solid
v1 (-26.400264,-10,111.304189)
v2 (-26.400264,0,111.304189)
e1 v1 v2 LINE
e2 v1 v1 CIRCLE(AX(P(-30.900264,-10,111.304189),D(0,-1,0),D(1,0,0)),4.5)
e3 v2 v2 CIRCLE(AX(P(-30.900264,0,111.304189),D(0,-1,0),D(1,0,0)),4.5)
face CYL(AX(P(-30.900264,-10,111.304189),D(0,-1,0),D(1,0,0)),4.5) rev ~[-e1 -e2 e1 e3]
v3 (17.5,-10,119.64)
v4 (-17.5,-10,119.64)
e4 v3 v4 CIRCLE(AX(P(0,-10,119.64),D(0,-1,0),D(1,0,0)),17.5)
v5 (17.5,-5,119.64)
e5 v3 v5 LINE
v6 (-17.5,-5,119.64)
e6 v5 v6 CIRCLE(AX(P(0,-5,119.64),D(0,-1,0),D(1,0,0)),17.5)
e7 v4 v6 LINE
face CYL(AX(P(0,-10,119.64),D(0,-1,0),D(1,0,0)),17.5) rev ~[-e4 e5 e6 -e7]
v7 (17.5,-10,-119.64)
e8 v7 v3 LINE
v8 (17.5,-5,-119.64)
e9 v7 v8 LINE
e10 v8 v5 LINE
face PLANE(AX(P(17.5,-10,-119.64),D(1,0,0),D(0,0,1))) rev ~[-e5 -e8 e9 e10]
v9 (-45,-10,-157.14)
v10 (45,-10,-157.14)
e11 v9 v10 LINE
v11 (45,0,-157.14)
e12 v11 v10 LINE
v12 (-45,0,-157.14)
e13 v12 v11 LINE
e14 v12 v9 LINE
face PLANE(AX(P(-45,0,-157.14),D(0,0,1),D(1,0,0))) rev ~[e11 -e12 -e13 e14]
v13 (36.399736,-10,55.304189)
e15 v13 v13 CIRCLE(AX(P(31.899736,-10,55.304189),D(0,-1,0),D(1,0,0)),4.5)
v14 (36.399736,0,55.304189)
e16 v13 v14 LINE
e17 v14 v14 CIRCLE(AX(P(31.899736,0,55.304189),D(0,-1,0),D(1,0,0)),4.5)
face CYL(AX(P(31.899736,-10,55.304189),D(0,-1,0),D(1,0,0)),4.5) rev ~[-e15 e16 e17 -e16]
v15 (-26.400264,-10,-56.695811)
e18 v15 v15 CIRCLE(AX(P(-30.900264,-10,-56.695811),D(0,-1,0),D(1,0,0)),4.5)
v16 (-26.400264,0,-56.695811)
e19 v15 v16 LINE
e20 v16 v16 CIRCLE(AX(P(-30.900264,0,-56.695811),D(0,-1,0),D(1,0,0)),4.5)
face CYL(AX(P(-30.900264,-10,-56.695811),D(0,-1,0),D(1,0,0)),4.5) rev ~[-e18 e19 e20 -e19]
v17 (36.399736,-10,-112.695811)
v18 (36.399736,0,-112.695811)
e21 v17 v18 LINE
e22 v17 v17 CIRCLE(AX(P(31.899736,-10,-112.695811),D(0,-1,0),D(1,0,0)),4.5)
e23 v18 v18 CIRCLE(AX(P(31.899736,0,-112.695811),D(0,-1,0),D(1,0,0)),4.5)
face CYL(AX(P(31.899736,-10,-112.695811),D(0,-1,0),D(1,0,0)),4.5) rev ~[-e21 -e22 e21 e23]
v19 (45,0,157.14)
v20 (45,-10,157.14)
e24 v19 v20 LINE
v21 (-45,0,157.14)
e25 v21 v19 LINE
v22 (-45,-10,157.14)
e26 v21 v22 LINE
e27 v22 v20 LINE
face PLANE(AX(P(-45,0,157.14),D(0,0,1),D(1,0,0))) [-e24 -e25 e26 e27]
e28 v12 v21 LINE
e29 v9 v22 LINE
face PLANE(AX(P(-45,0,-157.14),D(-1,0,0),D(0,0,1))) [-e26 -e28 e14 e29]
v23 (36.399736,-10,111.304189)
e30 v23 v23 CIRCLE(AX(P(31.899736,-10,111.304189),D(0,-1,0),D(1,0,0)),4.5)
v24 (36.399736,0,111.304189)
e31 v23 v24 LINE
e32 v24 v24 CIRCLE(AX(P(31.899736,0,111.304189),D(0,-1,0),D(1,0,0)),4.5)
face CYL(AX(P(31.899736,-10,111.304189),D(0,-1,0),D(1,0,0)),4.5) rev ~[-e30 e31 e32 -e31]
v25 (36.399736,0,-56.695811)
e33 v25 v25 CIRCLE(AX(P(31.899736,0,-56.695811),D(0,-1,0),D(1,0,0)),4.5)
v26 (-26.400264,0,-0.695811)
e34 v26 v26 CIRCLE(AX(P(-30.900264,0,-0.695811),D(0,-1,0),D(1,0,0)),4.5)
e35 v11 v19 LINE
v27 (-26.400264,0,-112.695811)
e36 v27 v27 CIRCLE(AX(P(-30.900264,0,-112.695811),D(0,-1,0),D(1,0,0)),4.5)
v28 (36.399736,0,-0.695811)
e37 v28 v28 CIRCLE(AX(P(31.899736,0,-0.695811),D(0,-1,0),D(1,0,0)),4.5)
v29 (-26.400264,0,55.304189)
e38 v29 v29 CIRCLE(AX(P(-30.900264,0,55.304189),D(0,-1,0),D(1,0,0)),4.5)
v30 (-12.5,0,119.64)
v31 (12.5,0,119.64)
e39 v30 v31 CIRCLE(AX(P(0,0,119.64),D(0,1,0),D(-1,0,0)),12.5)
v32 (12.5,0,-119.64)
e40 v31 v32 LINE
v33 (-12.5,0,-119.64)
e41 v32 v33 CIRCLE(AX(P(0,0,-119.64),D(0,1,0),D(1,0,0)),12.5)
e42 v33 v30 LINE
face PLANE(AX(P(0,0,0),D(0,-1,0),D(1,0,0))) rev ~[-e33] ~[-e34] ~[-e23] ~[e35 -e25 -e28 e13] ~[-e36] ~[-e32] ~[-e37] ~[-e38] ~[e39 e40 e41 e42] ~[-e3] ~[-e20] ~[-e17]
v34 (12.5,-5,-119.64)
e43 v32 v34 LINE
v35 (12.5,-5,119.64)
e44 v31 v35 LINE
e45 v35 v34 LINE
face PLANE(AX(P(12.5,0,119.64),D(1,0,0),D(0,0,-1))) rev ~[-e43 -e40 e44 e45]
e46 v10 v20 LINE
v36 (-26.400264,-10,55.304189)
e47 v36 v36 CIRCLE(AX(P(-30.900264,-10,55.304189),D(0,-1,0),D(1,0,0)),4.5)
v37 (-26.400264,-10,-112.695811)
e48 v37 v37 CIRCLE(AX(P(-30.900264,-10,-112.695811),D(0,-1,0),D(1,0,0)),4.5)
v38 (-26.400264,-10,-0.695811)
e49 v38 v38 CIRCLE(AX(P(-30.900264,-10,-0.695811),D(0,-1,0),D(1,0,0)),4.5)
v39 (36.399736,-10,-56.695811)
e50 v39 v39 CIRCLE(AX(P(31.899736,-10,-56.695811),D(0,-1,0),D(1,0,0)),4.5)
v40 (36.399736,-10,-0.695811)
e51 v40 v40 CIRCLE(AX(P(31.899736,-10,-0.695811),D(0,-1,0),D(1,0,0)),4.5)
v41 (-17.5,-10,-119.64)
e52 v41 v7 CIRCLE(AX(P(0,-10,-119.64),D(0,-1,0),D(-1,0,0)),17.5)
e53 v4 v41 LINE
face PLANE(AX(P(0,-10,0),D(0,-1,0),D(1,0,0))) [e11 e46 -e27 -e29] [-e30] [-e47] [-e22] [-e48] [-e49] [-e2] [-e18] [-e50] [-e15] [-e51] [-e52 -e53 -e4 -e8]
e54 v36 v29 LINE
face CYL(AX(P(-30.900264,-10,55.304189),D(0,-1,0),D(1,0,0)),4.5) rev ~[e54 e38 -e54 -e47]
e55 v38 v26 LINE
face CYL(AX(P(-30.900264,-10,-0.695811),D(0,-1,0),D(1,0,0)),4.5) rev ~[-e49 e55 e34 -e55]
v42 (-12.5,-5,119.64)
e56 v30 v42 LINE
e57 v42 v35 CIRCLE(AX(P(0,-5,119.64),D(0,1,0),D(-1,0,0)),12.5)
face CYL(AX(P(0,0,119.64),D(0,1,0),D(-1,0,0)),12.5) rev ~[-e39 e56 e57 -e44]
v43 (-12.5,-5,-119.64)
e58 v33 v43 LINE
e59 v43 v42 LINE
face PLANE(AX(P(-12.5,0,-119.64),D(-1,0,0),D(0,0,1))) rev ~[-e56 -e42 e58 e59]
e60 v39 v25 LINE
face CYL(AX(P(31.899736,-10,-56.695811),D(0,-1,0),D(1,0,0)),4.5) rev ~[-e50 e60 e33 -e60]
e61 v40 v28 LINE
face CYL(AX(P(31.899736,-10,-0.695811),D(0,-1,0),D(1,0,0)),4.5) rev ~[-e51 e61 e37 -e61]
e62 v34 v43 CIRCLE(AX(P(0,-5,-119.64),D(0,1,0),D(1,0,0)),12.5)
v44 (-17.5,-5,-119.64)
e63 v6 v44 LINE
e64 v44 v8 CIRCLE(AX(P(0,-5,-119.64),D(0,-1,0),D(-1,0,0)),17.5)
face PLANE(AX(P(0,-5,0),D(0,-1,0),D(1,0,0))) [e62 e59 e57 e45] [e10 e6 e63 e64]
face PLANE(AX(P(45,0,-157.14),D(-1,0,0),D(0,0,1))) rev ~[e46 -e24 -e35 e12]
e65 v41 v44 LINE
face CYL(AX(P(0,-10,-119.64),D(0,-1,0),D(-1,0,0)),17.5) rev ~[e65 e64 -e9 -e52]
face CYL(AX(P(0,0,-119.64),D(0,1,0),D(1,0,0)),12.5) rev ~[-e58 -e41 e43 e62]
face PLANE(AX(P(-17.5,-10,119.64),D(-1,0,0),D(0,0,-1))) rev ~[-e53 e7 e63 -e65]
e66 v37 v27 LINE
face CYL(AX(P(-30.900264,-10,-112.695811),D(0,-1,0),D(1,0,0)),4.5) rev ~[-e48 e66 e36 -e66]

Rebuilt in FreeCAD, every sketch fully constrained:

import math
import FreeCAD as App
import Part
import Sketcher

V = App.Vector
Q = App.Units.Quantity


def add_polygon(sketch, points):
    """Adds a closed chain of lines whose ends are joined by coincident constraints."""
    first, n = sketch.GeometryCount, len(points)
    for a, b in zip(points, points[1:] + points[:1]):
        sketch.addGeometry(Part.LineSegment(App.Vector(*a, 0), App.Vector(*b, 0)), False)
    for i in range(n):
        sketch.addConstraint(Sketcher.Constraint("Coincident", first + i, 2, first + (i + 1) % n, 1))

doc = App.newDocument("Part")
body = doc.addObject("PartDesign::Body", "Body")

# Sketch on XZ plane
sketch1 = body.newObject("Sketcher::SketchObject", "Sketch")
sketch1.AttachmentSupport = (doc.getObject("XZ_Plane"), [""])
sketch1.MapMode = "FlatFace"
add_polygon(sketch1, [(-45, 157), (-45, -157), (45, -157), (45, 157)])  # lines 0-3
sketch1.addGeometry(Part.ArcOfCircle(Part.Circle(V(0, -120, 0), V(0, 0, 1), 12), math.radians(180), math.radians(360)), False)  # 4
sketch1.addGeometry(Part.LineSegment(V(-12, -120, 0), V(-12, 120, 0)), False)  # 5
sketch1.addGeometry(Part.ArcOfCircle(Part.Circle(V(0, 120, 0), V(0, 0, 1), 12), math.radians(0), math.radians(180)), False)  # 6
sketch1.addGeometry(Part.LineSegment(V(12, 120, 0), V(12, -120, 0)), False)  # 7
sketch1.addConstraint(Sketcher.Constraint("Tangent", 4, 1, 5, 1))
sketch1.addConstraint(Sketcher.Constraint("Tangent", 5, 2, 6, 2))
sketch1.addConstraint(Sketcher.Constraint("Tangent", 6, 1, 7, 1))
sketch1.addConstraint(Sketcher.Constraint("Tangent", 7, 2, 4, 2))
sketch1.addConstraint(Sketcher.Constraint("Vertical", 0))
sketch1.addConstraint(Sketcher.Constraint("Horizontal", 1))
sketch1.addConstraint(Sketcher.Constraint("Vertical", 2))
sketch1.addConstraint(Sketcher.Constraint("Horizontal", 3))
sketch1.addConstraint(Sketcher.Constraint("Vertical", 5))
sketch1.addConstraint(Sketcher.Constraint("Vertical", 7))
sketch1.addConstraint(Sketcher.Constraint("Symmetric", 4, 3, 6, 3, -1, 1))
sketch1.addConstraint(Sketcher.Constraint("Symmetric", 0, 2, 2, 2, -1, 1))
sketch1.addConstraint(Sketcher.Constraint("Radius", 4, Q("12.5 mm")))
sketch1.addConstraint(Sketcher.Constraint("DistanceX", 1, 1, 1, 2, Q("90 mm")))
sketch1.addConstraint(Sketcher.Constraint("DistanceY", 0, 2, 0, 1, Q("314.28 mm")))
sketch1.addConstraint(Sketcher.Constraint("DistanceY", 5, 1, 5, 2, Q("239.28 mm")))
pad1 = body.newObject("PartDesign::Pad", "Pad")
pad1.Profile = sketch1
pad1.Length = 10

# Sketch on XZ plane
sketch2 = body.newObject("Sketcher::SketchObject", "Sketch001")
sketch2.AttachmentSupport = (doc.getObject("XZ_Plane"), [""])
sketch2.MapMode = "FlatFace"
sketch2.AttachmentOffset = App.Placement(V(0, 0, 10), App.Rotation())
sketch2.addGeometry(Part.LineSegment(V(18, -120, 0), V(18, 120, 0)), False)
sketch2.addGeometry(Part.ArcOfCircle(Part.Circle(V(0, 120, 0), V(0, 0, 1), 18), math.radians(0), math.radians(180)), False)
sketch2.addGeometry(Part.LineSegment(V(-18, 120, 0), V(-18, -120, 0)), False)
sketch2.addGeometry(Part.ArcOfCircle(Part.Circle(V(0, -120, 0), V(0, 0, 1), 18), math.radians(180), math.radians(360)), False)
sketch2.addConstraint(Sketcher.Constraint("Tangent", 0, 2, 1, 1))
sketch2.addConstraint(Sketcher.Constraint("Tangent", 1, 2, 2, 1))
sketch2.addConstraint(Sketcher.Constraint("Tangent", 2, 2, 3, 1))
sketch2.addConstraint(Sketcher.Constraint("Tangent", 3, 2, 0, 1))
sketch2.addConstraint(Sketcher.Constraint("Vertical", 0))
sketch2.addConstraint(Sketcher.Constraint("Vertical", 2))
sketch2.addConstraint(Sketcher.Constraint("Symmetric", 1, 3, 3, 3, -1, 1))
sketch2.addConstraint(Sketcher.Constraint("Radius", 1, Q("17.5 mm")))
sketch2.addConstraint(Sketcher.Constraint("DistanceY", 0, 1, 0, 2, Q("239.28 mm")))
pocket1 = body.newObject("PartDesign::Pocket", "Pocket")
pocket1.Profile = sketch2
pocket1.Length = 5

# Sketch on XZ plane
sketch3 = body.newObject("Sketcher::SketchObject", "Sketch002")
sketch3.AttachmentSupport = (doc.getObject("XZ_Plane"), [""])
sketch3.MapMode = "FlatFace"
sketch3.AttachmentOffset = App.Placement(V(0, 0, 10), App.Rotation())
sketch3.addGeometry(Part.Circle(V(31.9, -112.7, 0), V(0, 0, 1), 4.5), False)
sketch3.addGeometry(Part.Circle(V(-30.9, -112.7, 0), V(0, 0, 1), 4.5), False)
sketch3.addGeometry(Part.Circle(V(31.9, -56.7, 0), V(0, 0, 1), 4.5), False)
sketch3.addGeometry(Part.Circle(V(31.9, -0.7, 0), V(0, 0, 1), 4.5), False)
sketch3.addGeometry(Part.Circle(V(31.9, 55.3, 0), V(0, 0, 1), 4.5), False)
sketch3.addGeometry(Part.Circle(V(31.9, 111.3, 0), V(0, 0, 1), 4.5), False)
sketch3.addGeometry(Part.Circle(V(-30.9, 111.3, 0), V(0, 0, 1), 4.5), False)
sketch3.addGeometry(Part.Circle(V(-30.9, 55.3, 0), V(0, 0, 1), 4.5), False)
sketch3.addGeometry(Part.Circle(V(-30.9, -0.7, 0), V(0, 0, 1), 4.5), False)
sketch3.addGeometry(Part.Circle(V(-30.9, -56.7, 0), V(0, 0, 1), 4.5), False)
sketch3.addConstraint(Sketcher.Constraint("Equal", 0, 1))
sketch3.addConstraint(Sketcher.Constraint("Equal", 1, 2))
sketch3.addConstraint(Sketcher.Constraint("Equal", 2, 3))
sketch3.addConstraint(Sketcher.Constraint("Equal", 3, 4))
sketch3.addConstraint(Sketcher.Constraint("Equal", 4, 5))
sketch3.addConstraint(Sketcher.Constraint("Equal", 5, 6))
sketch3.addConstraint(Sketcher.Constraint("Equal", 6, 7))
sketch3.addConstraint(Sketcher.Constraint("Equal", 7, 8))
sketch3.addConstraint(Sketcher.Constraint("Equal", 8, 9))
sketch3.addConstraint(Sketcher.Constraint("Horizontal", 0, 3, 1, 3))
sketch3.addConstraint(Sketcher.Constraint("Horizontal", 5, 3, 6, 3))
sketch3.addConstraint(Sketcher.Constraint("Horizontal", 4, 3, 7, 3))
sketch3.addConstraint(Sketcher.Constraint("Horizontal", 3, 3, 8, 3))
sketch3.addConstraint(Sketcher.Constraint("Horizontal", 2, 3, 9, 3))
sketch3.addConstraint(Sketcher.Constraint("Vertical", 0, 3, 2, 3))
sketch3.addConstraint(Sketcher.Constraint("Vertical", 2, 3, 3, 3))
sketch3.addConstraint(Sketcher.Constraint("Vertical", 3, 3, 4, 3))
sketch3.addConstraint(Sketcher.Constraint("Vertical", 4, 3, 5, 3))
sketch3.addConstraint(Sketcher.Constraint("Vertical", 1, 3, 6, 3))
sketch3.addConstraint(Sketcher.Constraint("Vertical", 6, 3, 7, 3))
sketch3.addConstraint(Sketcher.Constraint("Vertical", 7, 3, 8, 3))
sketch3.addConstraint(Sketcher.Constraint("Vertical", 8, 3, 9, 3))
sketch3.addConstraint(Sketcher.Constraint("Diameter", 0, Q("9 mm")))
sketch3.addConstraint(Sketcher.Constraint("DistanceY", 0, 3, 2, 3, Q("56 mm")))
sketch3.addConstraint(Sketcher.Constraint("DistanceY", 2, 3, 3, 3, Q("56 mm")))
sketch3.addConstraint(Sketcher.Constraint("DistanceY", 3, 3, 4, 3, Q("56 mm")))
sketch3.addConstraint(Sketcher.Constraint("DistanceY", 4, 3, 5, 3, Q("56 mm")))
sketch3.addConstraint(Sketcher.Constraint("DistanceX", 1, 3, 0, 3, Q("62.8 mm")))
sketch3.addConstraint(Sketcher.Constraint("DistanceY", 0, 3, -1, 1, Q("112.695811 mm")))
sketch3.addConstraint(Sketcher.Constraint("DistanceX", -1, 1, 0, 3, Q("31.899736 mm")))
pocket2 = body.newObject("PartDesign::Pocket", "Pocket001")
pocket2.Profile = sketch3
pocket2.Length = 25

doc.recompute()
